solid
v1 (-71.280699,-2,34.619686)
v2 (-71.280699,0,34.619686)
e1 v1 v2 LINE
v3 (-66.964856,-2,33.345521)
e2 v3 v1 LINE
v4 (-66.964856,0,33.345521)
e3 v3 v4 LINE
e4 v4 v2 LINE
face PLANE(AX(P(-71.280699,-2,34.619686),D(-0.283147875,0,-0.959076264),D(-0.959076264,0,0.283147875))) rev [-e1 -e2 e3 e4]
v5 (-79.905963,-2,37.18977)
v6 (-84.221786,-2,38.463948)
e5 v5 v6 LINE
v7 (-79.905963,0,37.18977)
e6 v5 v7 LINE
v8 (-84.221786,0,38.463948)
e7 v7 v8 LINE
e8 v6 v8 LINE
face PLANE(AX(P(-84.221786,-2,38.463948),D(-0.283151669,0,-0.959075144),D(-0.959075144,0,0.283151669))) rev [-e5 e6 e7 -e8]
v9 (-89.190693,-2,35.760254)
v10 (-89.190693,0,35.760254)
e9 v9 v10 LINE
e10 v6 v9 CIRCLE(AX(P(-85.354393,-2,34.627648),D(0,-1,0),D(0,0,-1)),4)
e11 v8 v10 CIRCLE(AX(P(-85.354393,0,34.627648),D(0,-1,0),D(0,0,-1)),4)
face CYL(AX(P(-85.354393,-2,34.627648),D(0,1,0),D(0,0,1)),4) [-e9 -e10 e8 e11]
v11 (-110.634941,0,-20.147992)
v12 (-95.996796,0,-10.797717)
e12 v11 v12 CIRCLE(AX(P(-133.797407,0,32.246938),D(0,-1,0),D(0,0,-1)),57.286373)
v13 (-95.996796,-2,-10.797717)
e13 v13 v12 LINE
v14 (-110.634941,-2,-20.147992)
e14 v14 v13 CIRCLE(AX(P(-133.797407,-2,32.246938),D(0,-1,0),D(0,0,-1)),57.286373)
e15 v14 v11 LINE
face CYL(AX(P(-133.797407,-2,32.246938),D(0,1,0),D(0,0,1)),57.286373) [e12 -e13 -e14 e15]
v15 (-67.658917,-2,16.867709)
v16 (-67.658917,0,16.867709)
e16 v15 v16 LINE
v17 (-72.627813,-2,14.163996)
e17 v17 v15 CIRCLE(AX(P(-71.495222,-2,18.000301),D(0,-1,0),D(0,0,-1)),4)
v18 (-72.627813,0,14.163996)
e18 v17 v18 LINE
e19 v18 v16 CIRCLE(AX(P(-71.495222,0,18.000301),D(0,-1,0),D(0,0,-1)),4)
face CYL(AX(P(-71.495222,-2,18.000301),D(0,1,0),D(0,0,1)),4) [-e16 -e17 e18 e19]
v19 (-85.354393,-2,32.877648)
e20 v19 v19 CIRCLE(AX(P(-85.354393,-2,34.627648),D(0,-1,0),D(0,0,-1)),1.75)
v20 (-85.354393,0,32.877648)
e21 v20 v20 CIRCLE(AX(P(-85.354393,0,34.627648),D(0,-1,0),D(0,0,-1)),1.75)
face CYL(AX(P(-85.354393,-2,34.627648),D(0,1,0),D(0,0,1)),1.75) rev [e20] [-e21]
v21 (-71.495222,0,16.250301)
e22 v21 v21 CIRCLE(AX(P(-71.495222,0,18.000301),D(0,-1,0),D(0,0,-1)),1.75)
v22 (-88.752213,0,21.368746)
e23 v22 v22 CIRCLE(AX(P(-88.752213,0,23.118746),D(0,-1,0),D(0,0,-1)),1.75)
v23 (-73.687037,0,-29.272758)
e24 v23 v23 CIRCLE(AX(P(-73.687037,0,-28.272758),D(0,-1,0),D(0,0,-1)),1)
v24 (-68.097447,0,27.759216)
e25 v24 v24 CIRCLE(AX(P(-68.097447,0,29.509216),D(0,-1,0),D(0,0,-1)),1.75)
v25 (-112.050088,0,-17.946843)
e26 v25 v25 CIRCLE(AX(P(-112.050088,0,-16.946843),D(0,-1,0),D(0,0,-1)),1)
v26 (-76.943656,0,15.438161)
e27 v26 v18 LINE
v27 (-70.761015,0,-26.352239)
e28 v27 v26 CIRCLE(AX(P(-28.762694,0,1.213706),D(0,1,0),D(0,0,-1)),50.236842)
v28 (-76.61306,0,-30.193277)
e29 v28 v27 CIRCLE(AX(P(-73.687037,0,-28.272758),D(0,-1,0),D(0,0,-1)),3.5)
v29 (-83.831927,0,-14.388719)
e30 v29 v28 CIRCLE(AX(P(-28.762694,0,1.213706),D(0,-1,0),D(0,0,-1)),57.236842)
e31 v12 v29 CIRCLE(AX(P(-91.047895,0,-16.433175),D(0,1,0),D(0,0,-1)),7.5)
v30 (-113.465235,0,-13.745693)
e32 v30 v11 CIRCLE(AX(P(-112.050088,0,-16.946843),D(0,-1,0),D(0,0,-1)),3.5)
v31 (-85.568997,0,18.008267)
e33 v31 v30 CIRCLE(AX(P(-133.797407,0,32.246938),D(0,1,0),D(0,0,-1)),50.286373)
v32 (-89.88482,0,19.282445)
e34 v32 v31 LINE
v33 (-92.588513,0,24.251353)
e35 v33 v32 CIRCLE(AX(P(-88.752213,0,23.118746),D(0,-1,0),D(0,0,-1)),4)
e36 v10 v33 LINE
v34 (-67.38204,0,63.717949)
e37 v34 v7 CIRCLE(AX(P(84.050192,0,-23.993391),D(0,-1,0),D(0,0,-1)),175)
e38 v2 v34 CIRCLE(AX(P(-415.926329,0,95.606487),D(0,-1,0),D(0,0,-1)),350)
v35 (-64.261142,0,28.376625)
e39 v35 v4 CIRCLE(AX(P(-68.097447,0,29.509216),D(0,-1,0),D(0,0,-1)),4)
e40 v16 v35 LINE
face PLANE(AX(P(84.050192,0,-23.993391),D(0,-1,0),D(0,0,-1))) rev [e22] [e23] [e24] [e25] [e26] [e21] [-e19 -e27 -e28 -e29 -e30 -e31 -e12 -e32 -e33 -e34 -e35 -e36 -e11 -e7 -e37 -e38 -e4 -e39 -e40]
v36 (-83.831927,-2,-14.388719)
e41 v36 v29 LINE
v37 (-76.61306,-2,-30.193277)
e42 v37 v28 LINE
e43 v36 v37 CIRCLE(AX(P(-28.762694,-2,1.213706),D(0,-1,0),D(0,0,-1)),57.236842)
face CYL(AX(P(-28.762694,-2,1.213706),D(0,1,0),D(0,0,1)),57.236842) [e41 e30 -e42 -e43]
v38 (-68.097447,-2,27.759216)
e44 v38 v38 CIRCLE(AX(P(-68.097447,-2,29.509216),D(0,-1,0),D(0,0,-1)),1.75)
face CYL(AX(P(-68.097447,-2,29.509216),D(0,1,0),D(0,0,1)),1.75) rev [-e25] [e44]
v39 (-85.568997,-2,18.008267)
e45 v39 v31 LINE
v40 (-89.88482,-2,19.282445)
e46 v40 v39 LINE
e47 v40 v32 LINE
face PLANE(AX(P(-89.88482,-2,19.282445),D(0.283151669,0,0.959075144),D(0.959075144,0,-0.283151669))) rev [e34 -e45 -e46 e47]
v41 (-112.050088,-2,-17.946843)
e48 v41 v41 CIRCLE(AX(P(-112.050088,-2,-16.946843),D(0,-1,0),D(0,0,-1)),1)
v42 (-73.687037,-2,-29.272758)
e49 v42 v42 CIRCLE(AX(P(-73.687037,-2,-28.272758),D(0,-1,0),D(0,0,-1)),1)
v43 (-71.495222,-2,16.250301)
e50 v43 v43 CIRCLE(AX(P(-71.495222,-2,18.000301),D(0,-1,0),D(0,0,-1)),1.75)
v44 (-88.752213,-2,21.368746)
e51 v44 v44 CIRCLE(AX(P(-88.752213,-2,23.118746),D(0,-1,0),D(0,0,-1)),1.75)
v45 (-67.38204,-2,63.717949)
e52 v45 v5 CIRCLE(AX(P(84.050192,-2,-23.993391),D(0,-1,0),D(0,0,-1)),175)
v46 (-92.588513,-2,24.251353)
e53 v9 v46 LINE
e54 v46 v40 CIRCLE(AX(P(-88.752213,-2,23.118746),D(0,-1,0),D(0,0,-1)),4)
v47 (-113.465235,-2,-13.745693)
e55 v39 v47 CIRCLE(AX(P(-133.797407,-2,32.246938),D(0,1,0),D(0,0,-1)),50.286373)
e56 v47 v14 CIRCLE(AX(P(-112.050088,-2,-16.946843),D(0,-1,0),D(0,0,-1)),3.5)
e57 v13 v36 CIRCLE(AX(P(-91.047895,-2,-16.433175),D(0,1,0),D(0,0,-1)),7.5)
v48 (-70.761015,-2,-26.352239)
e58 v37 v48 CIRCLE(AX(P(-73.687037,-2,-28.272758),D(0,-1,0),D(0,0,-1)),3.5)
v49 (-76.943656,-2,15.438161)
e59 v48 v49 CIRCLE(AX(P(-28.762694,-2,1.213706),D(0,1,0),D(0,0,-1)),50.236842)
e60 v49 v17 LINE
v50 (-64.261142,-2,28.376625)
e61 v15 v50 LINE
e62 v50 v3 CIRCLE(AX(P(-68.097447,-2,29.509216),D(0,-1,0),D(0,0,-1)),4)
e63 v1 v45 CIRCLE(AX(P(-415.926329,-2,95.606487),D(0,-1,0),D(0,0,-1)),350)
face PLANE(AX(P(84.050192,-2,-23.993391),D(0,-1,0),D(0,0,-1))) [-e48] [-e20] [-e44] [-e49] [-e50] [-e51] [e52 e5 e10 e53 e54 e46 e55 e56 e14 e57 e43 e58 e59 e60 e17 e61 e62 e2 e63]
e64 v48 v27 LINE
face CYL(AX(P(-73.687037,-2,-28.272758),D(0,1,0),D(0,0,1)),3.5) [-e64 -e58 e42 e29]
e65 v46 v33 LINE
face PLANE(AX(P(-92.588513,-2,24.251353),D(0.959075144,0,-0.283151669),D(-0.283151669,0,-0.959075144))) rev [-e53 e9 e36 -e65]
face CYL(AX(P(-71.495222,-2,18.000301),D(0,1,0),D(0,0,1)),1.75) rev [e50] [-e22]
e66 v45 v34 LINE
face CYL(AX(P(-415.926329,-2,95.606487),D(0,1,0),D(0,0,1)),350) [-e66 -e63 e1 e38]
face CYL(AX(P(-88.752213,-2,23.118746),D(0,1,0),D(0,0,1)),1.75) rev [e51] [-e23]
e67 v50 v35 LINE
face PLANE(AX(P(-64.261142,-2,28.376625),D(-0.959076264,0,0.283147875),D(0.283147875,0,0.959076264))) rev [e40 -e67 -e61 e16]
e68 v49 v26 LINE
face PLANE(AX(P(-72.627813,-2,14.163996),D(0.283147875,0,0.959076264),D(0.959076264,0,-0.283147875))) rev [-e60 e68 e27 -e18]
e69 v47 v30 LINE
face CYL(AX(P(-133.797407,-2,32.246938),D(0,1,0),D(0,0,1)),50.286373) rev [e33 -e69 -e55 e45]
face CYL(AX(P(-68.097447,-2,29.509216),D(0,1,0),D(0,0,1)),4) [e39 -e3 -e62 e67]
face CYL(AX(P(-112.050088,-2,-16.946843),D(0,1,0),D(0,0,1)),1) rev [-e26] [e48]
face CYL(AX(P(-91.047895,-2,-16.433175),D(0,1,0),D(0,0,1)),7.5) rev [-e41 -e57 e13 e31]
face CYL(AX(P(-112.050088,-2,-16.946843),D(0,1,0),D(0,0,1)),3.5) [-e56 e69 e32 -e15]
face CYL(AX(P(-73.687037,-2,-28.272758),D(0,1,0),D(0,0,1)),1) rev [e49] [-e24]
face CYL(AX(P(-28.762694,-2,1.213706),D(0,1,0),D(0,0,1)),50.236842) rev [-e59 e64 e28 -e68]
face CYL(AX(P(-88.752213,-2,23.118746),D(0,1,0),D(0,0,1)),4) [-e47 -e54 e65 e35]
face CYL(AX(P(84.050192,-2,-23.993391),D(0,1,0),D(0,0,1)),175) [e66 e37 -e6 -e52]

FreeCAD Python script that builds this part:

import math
import FreeCAD as App
import Part
import Sketcher

V = App.Vector
Q = App.Units.Quantity

doc = App.newDocument("Part")
body = doc.addObject("PartDesign::Body", "Body")

sketch1 = body.newObject("Sketcher::SketchObject", "Sketch")
sketch1.AttachmentSupport = (doc.getObject("XZ_Plane"), [""])
sketch1.MapMode = "FlatFace"
sketch1.addGeometry([
    Part.LineSegment(V(-76.943656, 15.438161, 0), V(-72.627813, 14.163996, 0)),
    Part.ArcOfCircle(Part.Circle(V(-71.495222, 18.000301, 0), V(0, 0, 1), 4), math.radians(-106.44817), math.radians(-16.44817)),
    Part.LineSegment(V(-67.658917, 16.867709, 0), V(-64.261142, 28.376624, 0)),
    Part.ArcOfCircle(Part.Circle(V(-68.097447, 29.509216, 0), V(0, 0, 1), 4), math.radians(-16.44817), math.radians(73.55183)),
    Part.LineSegment(V(-66.964856, 33.345521, 0), V(-71.280699, 34.619686, 0)),
    Part.ArcOfCircle(Part.Circle(V(-415.926329, 95.606487, 0), V(0, 0, 1), 350), math.radians(-10.034899), math.radians(-5.227474)),
    Part.ArcOfCircle(Part.Circle(V(84.050192, -23.993391, 0), V(0, 0, 1), 175), math.radians(149.92007), math.radians(159.536044)),
    Part.LineSegment(V(-79.905963, 37.18977, 0), V(-84.221786, 38.463948, 0)),
    Part.ArcOfCircle(Part.Circle(V(-85.354393, 34.627648, 0), V(0, 0, 1), 4), math.radians(73.551603), math.radians(163.551603)),
    Part.LineSegment(V(-89.190693, 35.760254, 0), V(-92.588513, 24.251353, 0)),
    Part.ArcOfCircle(Part.Circle(V(-88.752213, 23.118746, 0), V(0, 0, 1), 4), math.radians(163.551603), math.radians(253.551603)),
    Part.LineSegment(V(-89.88482, 19.282445, 0), V(-85.568997, 18.008267, 0)),
    Part.ArcOfCircle(Part.Circle(V(-133.797407, 32.246938, 0), V(0, 0, 1), 50.286373), math.radians(-66.150997), math.radians(-16.448397)),
    Part.ArcOfCircle(Part.Circle(V(-112.050088, -16.946843, 0), V(0, 0, 1), 3.5), math.radians(113.849003), math.radians(293.849003)),
    Part.ArcOfCircle(Part.Circle(V(-133.797407, 32.246938, 0), V(0, 0, 1), 57.286373), math.radians(-66.150997), math.radians(-48.711303)),
    Part.ArcOfCircle(Part.Circle(V(-91.047895, -16.433175, 0), V(0, 0, 1), 7.5), math.radians(15.818689), math.radians(131.288697)),
    Part.ArcOfCircle(Part.Circle(V(-28.762694, 1.213706, 0), V(0, 0, 1), 57.236842), math.radians(-164.181311), math.radians(-146.720777)),
    Part.ArcOfCircle(Part.Circle(V(-73.687037, -28.272758, 0), V(0, 0, 1), 3.5), math.radians(-146.720777), math.radians(33.279223)),
    Part.ArcOfCircle(Part.Circle(V(-28.762694, 1.213706, 0), V(0, 0, 1), 50.236842), math.radians(163.55183), math.radians(213.279223)),
    Part.Circle(V(-85.354393, 34.627648, 0), V(0, 0, 1), 1.75),
    Part.Circle(V(-88.752213, 23.118746, 0), V(0, 0, 1), 1.75),
    Part.Circle(V(-68.097447, 29.509216, 0), V(0, 0, 1), 1.75),
    Part.Circle(V(-71.495222, 18.000301, 0), V(0, 0, 1), 1.75),
    Part.Circle(V(-112.050088, -16.946843, 0), V(0, 0, 1), 1),
    Part.Circle(V(-73.687037, -28.272758, 0), V(0, 0, 1), 1),
], False)
sketch1.addConstraint([
    Sketcher.Constraint("Tangent", 0, 2, 1, 1),
    Sketcher.Constraint("Tangent", 1, 2, 2, 1),
    Sketcher.Constraint("Tangent", 2, 2, 3, 1),
    Sketcher.Constraint("Tangent", 3, 2, 4, 1),
    Sketcher.Constraint("Coincident", 4, 2, 5, 1),
    Sketcher.Constraint("Coincident", 5, 2, 6, 1),
    Sketcher.Constraint("Coincident", 6, 2, 7, 1),
    Sketcher.Constraint("Tangent", 7, 2, 8, 1),
    Sketcher.Constraint("Tangent", 8, 2, 9, 1),
    Sketcher.Constraint("Tangent", 9, 2, 10, 1),
    Sketcher.Constraint("Tangent", 10, 2, 11, 1),
    Sketcher.Constraint("Coincident", 11, 2, 12, 2),
    Sketcher.Constraint("Tangent", 12, 1, 13, 1),
    Sketcher.Constraint("Tangent", 13, 2, 14, 1),
    Sketcher.Constraint("Tangent", 14, 2, 15, 2),
    Sketcher.Constraint("Tangent", 15, 1, 16, 1),
    Sketcher.Constraint("Tangent", 16, 2, 17, 1),
    Sketcher.Constraint("Tangent", 17, 2, 18, 2),
    Sketcher.Constraint("Coincident", 18, 1, 0, 1),
    Sketcher.Constraint("Coincident", 14, 3, 12, 3),
    Sketcher.Constraint("Coincident", 18, 3, 16, 3),
    Sketcher.Constraint("Coincident", 19, 3, 8, 3),
    Sketcher.Constraint("Coincident", 20, 3, 10, 3),
    Sketcher.Constraint("Coincident", 21, 3, 3, 3),
    Sketcher.Constraint("Coincident", 22, 3, 1, 3),
    Sketcher.Constraint("Coincident", 23, 3, 13, 3),
    Sketcher.Constraint("Coincident", 24, 3, 17, 3),
    Sketcher.Constraint("Equal", 1, 3),
    Sketcher.Constraint("Equal", 3, 8),
    Sketcher.Constraint("Equal", 8, 10),
    Sketcher.Constraint("Equal", 13, 17),
    Sketcher.Constraint("Equal", 19, 20),
    Sketcher.Constraint("Equal", 20, 21),
    Sketcher.Constraint("Equal", 21, 22),
    Sketcher.Constraint("Equal", 23, 24),
    Sketcher.Constraint("Perpendicular", 0, 2),
    Sketcher.Constraint("Perpendicular", 2, 4),
    Sketcher.Constraint("Perpendicular", 7, 9),
    Sketcher.Constraint("Perpendicular", 9, 11),
    Sketcher.Constraint("Equal", 0, 4),
    Sketcher.Constraint("Equal", 2, 9),
    Sketcher.Constraint("Equal", 7, 11),
    Sketcher.Constraint("Diameter", 23, Q("2 mm")),
    Sketcher.Constraint("Radius", 1, Q("4 mm")),
    Sketcher.Constraint("Radius", 5, Q("350 mm")),
    Sketcher.Constraint("Radius", 6, Q("175 mm")),
    Sketcher.Constraint("Diameter", 19, Q("3.5 mm")),
    Sketcher.Constraint("Radius", 13, Q("3.5 mm")),
    Sketcher.Constraint("Radius", 15, Q("7.5 mm")),
    Sketcher.Constraint("Distance", 2, Q("12 mm")),
    Sketcher.Constraint("Distance", 0, Q("4.5 mm")),
    Sketcher.Constraint("Radius", 12, Q("50.286373 mm")),
    Sketcher.Constraint("Radius", 16, Q("57.236842 mm")),
    Sketcher.Constraint("DistanceY", 15, 1, 14, 2, Q("3.591002 mm")),
    Sketcher.Constraint("DistanceY", -1, 1, 1, 3, Q("18.000301 mm")),
    Sketcher.Constraint("DistanceX", 4, 2, -1, 1, Q("71.280699 mm")),
    Sketcher.Constraint("DistanceY", 10, 3, 8, 3, Q("11.508902 mm")),
    Sketcher.Constraint("DistanceX", 12, 3, 6, 3, Q("217.847599 mm")),
    Sketcher.Constraint("DistanceX", 15, 3, 16, 3, Q("62.285202 mm")),
    Sketcher.Constraint("DistanceX", 8, 3, 16, 3, Q("56.591699 mm")),
    Sketcher.Constraint("DistanceX", 10, 3, 0, 2, Q("16.1244 mm")),
    Sketcher.Constraint("DistanceY", 16, 2, 15, 3, Q("13.760102 mm")),
    Sketcher.Constraint("DistanceX", 1, 3, -1, 1, Q("71.495222 mm")),
    Sketcher.Constraint("DistanceX", 5, 3, -1, 1, Q("415.926329 mm")),
    Sketcher.Constraint("DistanceY", 6, 3, -1, 1, Q("23.993391 mm")),
    Sketcher.Constraint("DistanceX", 13, 2, -1, 1, Q("110.634941 mm")),
])
pad1 = body.newObject("PartDesign::Pad", "Pad")
pad1.Profile = sketch1
pad1.Length = 2

doc.recompute()
